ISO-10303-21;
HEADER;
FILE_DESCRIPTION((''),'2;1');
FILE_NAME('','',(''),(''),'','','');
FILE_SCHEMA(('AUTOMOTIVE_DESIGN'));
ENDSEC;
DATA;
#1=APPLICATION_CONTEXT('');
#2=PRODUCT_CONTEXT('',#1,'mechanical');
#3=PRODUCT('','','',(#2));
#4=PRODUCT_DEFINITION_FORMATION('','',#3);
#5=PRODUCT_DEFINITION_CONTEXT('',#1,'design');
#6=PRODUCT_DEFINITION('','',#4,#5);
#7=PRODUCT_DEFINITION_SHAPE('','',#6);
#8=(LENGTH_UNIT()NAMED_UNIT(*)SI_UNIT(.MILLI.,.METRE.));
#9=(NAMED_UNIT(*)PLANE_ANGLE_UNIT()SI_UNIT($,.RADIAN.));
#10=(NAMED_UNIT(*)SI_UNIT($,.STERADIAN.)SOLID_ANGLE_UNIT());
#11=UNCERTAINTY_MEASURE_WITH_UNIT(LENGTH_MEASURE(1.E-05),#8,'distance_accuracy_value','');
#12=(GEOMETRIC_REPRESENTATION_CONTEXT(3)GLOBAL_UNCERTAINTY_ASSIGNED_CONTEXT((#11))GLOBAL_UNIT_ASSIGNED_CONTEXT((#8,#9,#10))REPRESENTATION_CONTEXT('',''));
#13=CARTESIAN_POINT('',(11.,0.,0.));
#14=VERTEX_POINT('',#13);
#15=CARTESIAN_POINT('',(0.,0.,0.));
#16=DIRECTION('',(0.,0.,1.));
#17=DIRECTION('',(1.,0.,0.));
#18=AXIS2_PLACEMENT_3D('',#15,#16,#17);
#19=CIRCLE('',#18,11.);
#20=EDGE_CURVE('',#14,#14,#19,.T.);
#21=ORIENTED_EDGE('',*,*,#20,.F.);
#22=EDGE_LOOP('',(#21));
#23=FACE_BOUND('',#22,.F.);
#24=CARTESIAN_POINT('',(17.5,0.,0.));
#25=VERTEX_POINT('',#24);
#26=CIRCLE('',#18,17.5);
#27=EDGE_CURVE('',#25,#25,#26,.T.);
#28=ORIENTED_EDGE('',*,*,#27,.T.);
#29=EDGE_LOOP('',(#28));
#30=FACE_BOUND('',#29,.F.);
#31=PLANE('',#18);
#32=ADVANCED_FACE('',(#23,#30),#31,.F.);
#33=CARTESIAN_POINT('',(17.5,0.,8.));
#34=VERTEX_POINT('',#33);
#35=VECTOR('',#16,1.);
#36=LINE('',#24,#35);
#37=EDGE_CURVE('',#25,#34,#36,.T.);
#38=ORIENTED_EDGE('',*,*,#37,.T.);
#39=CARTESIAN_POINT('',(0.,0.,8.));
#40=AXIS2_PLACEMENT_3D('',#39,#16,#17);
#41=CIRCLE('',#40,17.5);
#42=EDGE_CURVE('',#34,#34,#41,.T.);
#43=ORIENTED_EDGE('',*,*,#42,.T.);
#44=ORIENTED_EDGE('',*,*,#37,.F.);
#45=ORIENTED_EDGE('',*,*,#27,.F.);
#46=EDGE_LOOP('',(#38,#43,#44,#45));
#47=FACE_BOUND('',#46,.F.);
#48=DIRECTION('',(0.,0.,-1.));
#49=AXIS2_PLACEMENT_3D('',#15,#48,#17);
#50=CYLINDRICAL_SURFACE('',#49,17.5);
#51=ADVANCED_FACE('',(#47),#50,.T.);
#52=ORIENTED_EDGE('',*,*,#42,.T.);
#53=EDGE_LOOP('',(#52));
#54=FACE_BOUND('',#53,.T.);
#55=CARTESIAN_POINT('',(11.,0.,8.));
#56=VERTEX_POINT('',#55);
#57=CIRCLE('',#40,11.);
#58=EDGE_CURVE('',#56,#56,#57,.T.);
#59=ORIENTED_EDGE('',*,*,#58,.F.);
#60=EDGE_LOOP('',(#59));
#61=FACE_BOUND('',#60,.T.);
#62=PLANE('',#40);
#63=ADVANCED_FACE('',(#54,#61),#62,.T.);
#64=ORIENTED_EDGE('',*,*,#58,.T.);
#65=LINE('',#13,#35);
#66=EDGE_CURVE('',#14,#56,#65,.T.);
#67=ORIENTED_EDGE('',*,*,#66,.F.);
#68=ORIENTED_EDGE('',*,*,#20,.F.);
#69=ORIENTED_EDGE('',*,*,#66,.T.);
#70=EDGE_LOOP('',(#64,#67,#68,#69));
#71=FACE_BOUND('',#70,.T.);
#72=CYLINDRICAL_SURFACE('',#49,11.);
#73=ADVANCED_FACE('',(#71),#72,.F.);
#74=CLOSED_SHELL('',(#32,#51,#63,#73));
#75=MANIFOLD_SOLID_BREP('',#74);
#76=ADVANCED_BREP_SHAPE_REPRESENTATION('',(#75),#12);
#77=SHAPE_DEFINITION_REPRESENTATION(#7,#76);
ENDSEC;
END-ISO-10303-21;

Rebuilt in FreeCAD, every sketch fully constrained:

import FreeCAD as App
import Part
import Sketcher
Q = App.Units.Quantity

doc = App.newDocument("Part")
body = doc.addObject("PartDesign::Body", "Body")

# Sketch on XY plane
sketch1 = doc.addObject("Sketcher::SketchObject", "Sketch")
body.addObject(sketch1)
sketch1.AttachmentSupport = (doc.XY_Plane, [""])
sketch1.MapMode = "FlatFace"
sketch1.addGeometry([
    Part.Circle(App.Vector(0, 0, 0), App.Vector(0, 0, 1), 18),
    Part.Circle(App.Vector(0, 0, 0), App.Vector(0, 0, 1), 11),
], False)
sketch1.addConstraint([
    Sketcher.Constraint("Coincident", 0, 3, -1, 1),
    Sketcher.Constraint("Coincident", 1, 3, -1, 1),
    Sketcher.Constraint("Diameter", 0, Q("35 mm")),
    Sketcher.Constraint("Diameter", 1, Q("22 mm")),
])
pad1 = doc.addObject("PartDesign::Pad", "Pad")
body.addObject(pad1)
pad1.Profile = sketch1
pad1.Length = 8

doc.recompute()
